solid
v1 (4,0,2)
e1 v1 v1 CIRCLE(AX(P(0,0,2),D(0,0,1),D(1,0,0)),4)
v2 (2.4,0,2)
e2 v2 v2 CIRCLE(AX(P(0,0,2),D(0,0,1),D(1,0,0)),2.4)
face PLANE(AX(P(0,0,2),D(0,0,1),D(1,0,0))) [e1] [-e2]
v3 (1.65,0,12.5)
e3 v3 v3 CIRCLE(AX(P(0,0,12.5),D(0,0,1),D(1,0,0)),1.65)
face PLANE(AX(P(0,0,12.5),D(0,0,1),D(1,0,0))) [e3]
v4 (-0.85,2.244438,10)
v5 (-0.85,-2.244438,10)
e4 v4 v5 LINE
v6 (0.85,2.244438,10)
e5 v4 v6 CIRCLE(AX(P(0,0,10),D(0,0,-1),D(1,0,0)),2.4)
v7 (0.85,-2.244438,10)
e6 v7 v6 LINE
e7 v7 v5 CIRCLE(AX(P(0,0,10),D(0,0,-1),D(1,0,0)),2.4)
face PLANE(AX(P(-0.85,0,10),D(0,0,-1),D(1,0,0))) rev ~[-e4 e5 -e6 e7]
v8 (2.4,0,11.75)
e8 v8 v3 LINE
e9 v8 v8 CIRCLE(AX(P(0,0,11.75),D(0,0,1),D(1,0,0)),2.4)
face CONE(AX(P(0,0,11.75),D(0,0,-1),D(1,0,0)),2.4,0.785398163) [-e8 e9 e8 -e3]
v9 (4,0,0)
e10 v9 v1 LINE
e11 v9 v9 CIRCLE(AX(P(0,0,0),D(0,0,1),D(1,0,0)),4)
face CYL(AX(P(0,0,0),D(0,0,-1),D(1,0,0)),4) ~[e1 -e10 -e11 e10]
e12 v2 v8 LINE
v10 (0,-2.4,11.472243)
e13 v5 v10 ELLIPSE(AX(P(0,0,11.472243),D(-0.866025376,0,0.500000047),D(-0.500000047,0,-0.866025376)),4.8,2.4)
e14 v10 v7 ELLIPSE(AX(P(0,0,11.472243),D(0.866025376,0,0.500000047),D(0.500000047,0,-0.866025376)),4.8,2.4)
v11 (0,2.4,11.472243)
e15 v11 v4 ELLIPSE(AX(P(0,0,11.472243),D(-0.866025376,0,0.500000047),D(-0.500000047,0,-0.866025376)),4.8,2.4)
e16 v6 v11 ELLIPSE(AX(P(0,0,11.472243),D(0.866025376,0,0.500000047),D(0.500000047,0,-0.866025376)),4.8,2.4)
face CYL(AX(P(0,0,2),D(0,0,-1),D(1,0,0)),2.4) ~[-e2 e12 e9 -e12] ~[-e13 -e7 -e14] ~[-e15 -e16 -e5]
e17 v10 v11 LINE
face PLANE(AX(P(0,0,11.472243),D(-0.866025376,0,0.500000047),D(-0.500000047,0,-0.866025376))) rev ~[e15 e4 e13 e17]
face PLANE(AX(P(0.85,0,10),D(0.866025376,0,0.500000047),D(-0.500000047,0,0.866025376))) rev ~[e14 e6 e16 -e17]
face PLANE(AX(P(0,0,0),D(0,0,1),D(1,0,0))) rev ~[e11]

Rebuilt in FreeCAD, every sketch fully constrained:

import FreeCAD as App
import Part
import Sketcher
Q = App.Units.Quantity


def edges_at(feature, points):
    """Names of the edges that pass closest to the given points."""
    edges = feature.Shape.Edges
    near = lambda p: min(range(len(edges)), key=lambda i: edges[i].distToShape(Part.Vertex(*p))[0])
    return sorted({f"Edge{near(p) + 1}" for p in points})


def add_polygon(sketch, points):
    """Adds a closed chain of lines whose ends are joined by coincident constraints."""
    first, n = sketch.GeometryCount, len(points)
    for a, b in zip(points, points[1:] + points[:1]):
        sketch.addGeometry(Part.LineSegment(App.Vector(*a, 0), App.Vector(*b, 0)), False)
    for i in range(n):
        sketch.addConstraint(Sketcher.Constraint("Coincident", first + i, 2, first + (i + 1) % n, 1))

doc = App.newDocument("Part")
params = doc.addObject("Spreadsheet::Sheet", "Params")
for row, (alias, value) in enumerate([
    ("sketch1_diameter", "8 mm"),
    ("pad1_length", "2 mm"),
    ("sketch2_diameter", "4.8 mm"),
    ("pad2_length", "10.5 mm"),
    ("sketch3_width", "1.7 mm"),
    ("pocket1_length", "10 mm"),
    ("chamfer_size", "0.75 mm"),
], start=1):
    params.set(f"A{row}", alias)
    params.set(f"B{row}", "=" + value)
    params.setAlias(f"B{row}", alias)

body = doc.addObject("PartDesign::Body", "Body")

sketch1 = body.newObject("Sketcher::SketchObject", "Sketch")
sketch1.AttachmentSupport = (doc.getObject("XY_Plane"), [""])
sketch1.MapMode = "FlatFace"
sketch1.addGeometry(Part.Circle(App.Vector(0, 0, 0), App.Vector(0, 0, 1), 4), False)
sketch1.addConstraint(Sketcher.Constraint("Coincident", 0, 3, -1, 1))
sketch1.addConstraint(Sketcher.Constraint("Diameter", 0, Q("8 mm")))
sketch1.setExpression("Constraints[1]", "Params.sketch1_diameter")
pad1 = body.newObject("PartDesign::Pad", "Pad")
pad1.Profile = sketch1
pad1.setExpression("Length", "Params.pad1_length")

sketch2 = body.newObject("Sketcher::SketchObject", "Sketch001")
sketch2.AttachmentSupport = (doc.getObject("XY_Plane"), [""])
sketch2.MapMode = "FlatFace"
sketch2.AttachmentOffset = App.Placement(App.Vector(0, 0, 2), App.Rotation())
sketch2.addGeometry(Part.Circle(App.Vector(0, 0, 0), App.Vector(0, 0, 1), 2.4), False)
sketch2.addConstraint(Sketcher.Constraint("Coincident", 0, 3, -1, 1))
sketch2.addConstraint(Sketcher.Constraint("Diameter", 0, Q("4.8 mm")))
sketch2.setExpression("Constraints[1]", "Params.sketch2_diameter")
pad2 = body.newObject("PartDesign::Pad", "Pad001")
pad2.Profile = sketch2
pad2.setExpression("Length", "Params.pad2_length")

sketch3 = body.newObject("Sketcher::SketchObject", "Sketch002")
sketch3.AttachmentSupport = (doc.getObject("XZ_Plane"), [""])
sketch3.MapMode = "FlatFace"
add_polygon(sketch3, [(0, 11.5), (-0.8, 10), (0.8, 10)])
sketch3.addConstraint(Sketcher.Constraint("Horizontal", 1))
sketch3.addConstraint(Sketcher.Constraint("PointOnObject", 2, 2, -2))
sketch3.addConstraint(Sketcher.Constraint("Equal", 0, 2))
sketch3.addConstraint(Sketcher.Constraint("Angle", 0, Q("-120.000003 deg")))
sketch3.addConstraint(Sketcher.Constraint("DistanceX", 1, 1, 1, 2, Q("1.7 mm")))
sketch3.addConstraint(Sketcher.Constraint("DistanceY", -1, 1, 0, 2, Q("10 mm")))
sketch3.setExpression("Constraints[7]", "Params.sketch3_width")
pocket1 = body.newObject("PartDesign::Pocket", "Pocket")
pocket1.Profile = sketch3
pocket1.setExpression("Length", "Params.pocket1_length")
pocket1.Midplane = True
doc.recompute()

chamfer = body.newObject("PartDesign::Chamfer", "Chamfer")
chamfer.Base = (pocket1, edges_at(pocket1, [(-2.4, 0, 12.5)]))
chamfer.setExpression("Size", "Params.chamfer_size")

doc.recompute()
